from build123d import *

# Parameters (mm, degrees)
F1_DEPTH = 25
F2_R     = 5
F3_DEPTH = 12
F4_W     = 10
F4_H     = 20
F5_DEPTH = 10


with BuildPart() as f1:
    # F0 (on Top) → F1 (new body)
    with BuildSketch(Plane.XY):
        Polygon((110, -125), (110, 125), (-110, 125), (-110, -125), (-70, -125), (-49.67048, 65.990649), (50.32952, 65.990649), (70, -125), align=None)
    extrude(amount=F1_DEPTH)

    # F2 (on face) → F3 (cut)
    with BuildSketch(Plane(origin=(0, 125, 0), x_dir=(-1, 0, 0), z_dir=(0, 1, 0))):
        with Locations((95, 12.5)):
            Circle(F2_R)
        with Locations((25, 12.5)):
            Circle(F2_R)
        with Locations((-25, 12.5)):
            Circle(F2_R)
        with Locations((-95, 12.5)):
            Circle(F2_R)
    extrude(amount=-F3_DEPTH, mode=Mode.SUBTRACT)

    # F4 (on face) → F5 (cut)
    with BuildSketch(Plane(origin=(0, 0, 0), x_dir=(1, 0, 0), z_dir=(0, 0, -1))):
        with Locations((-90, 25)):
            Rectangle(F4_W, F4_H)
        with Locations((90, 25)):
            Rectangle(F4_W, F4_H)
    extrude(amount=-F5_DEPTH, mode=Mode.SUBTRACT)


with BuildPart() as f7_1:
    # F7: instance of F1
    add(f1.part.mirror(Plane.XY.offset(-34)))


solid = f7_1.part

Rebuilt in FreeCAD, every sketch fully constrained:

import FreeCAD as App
import Part
import Sketcher
from FreeCAD import Vector

doc = App.newDocument("Part")
body = doc.addObject("PartDesign::Body", "Body")

# Sketch on XY plane
sketch1 = doc.addObject("Sketcher::SketchObject", "Sketch")
body.addObject(sketch1)
sketch1.AttachmentSupport = (doc.XY_Plane, [""])
sketch1.MapMode = "FlatFace"
sketch1.addGeometry([
    Part.LineSegment(Vector(110, -125, 0), Vector(110, 125, 0)),  # 0
    Part.LineSegment(Vector(110, 125, 0), Vector(-110, 125, 0)),  # 1
    Part.LineSegment(Vector(-110, 125, 0), Vector(-110, -125, 0)),  # 2
    Part.LineSegment(Vector(-110, -125, 0), Vector(-70, -125, 0)),  # 3
    Part.LineSegment(Vector(-70, -125, 0), Vector(-50, 66, 0)),  # 4
    Part.LineSegment(Vector(-50, 66, 0), Vector(50, 66, 0)),  # 5
    Part.LineSegment(Vector(50, 66, 0), Vector(70, -125, 0)),  # 6
    Part.LineSegment(Vector(70, -125, 0), Vector(110, -125, 0)),  # 7
], False)
sketch1.addConstraint([
    Sketcher.Constraint("Coincident", 0, 2, 1, 1),
    Sketcher.Constraint("Coincident", 1, 2, 2, 1),
    Sketcher.Constraint("Coincident", 2, 2, 3, 1),
    Sketcher.Constraint("Coincident", 3, 2, 4, 1),
    Sketcher.Constraint("Coincident", 4, 2, 5, 1),
    Sketcher.Constraint("Coincident", 5, 2, 6, 1),
    Sketcher.Constraint("Coincident", 6, 2, 7, 1),
    Sketcher.Constraint("Coincident", 7, 2, 0, 1),
    Sketcher.Constraint("Vertical", 0),
    Sketcher.Constraint("Horizontal", 1),
    Sketcher.Constraint("Vertical", 2),
    Sketcher.Constraint("Horizontal", 3),
    Sketcher.Constraint("Horizontal", 5),
    Sketcher.Constraint("Horizontal", 7),
    Sketcher.Constraint("Symmetric", 0, 2, 2, 2, -1, 1),
    Sketcher.Constraint("Symmetric", 3, 2, 6, 2, -2),
    Sketcher.Constraint("DistanceX", 1, 2, 1, 1, 220.0),
    Sketcher.Constraint("DistanceX", 3, 1, 3, 2, 40.0),
    Sketcher.Constraint("DistanceX", 5, 1, 5, 2, 100.0),
    Sketcher.Constraint("DistanceY", 0, 1, 0, 2, 250.0),
    Sketcher.Constraint("DistanceX", 4, 2, -1, 1, 49.67048),
    Sketcher.Constraint("DistanceY", -1, 1, 4, 2, 65.990649),
])
pad1 = doc.addObject("PartDesign::Pad", "Pad")
body.addObject(pad1)
pad1.Profile = sketch1
pad1.Length = 25

# Sketch on XZ plane
sketch2 = doc.addObject("Sketcher::SketchObject", "Sketch001")
body.addObject(sketch2)
sketch2.AttachmentSupport = (doc.XZ_Plane, [""])
sketch2.MapMode = "FlatFace"
sketch2.AttachmentOffset = App.Placement(Vector(0, 0, -125), App.Rotation())
sketch2.addGeometry([
    Part.Circle(Vector(-95, 12, 0), Vector(0, 0, 1), 5),
    Part.Circle(Vector(-25, 12, 0), Vector(0, 0, 1), 5),
    Part.Circle(Vector(25, 12, 0), Vector(0, 0, 1), 5),
    Part.Circle(Vector(95, 12, 0), Vector(0, 0, 1), 5),
], False)
sketch2.addConstraint([
    Sketcher.Constraint("Equal", 0, 1),
    Sketcher.Constraint("Equal", 1, 2),
    Sketcher.Constraint("Equal", 2, 3),
    Sketcher.Constraint("Symmetric", 1, 3, 2, 3, -2),
    Sketcher.Constraint("Symmetric", 0, 3, 3, 3, -2),
    Sketcher.Constraint("Horizontal", 0, 3, 1, 3),
    Sketcher.Constraint("Diameter", 0, 10.0),
    Sketcher.Constraint("DistanceX", 0, 3, -1, 1, 95.0),
    Sketcher.Constraint("DistanceX", 1, 3, -1, 1, 25.0),
    Sketcher.Constraint("DistanceY", -1, 1, 0, 3, 12.5),
])
pocket1 = doc.addObject("PartDesign::Pocket", "Pocket")
body.addObject(pocket1)
pocket1.Profile = sketch2
pocket1.Length = 12
pocket1.Reversed = True

# Sketch on XY plane
sketch3 = doc.addObject("Sketcher::SketchObject", "Sketch002")
body.addObject(sketch3)
sketch3.AttachmentSupport = (doc.XY_Plane, [""])
sketch3.MapMode = "FlatFace"
sketch3.addGeometry([
    Part.LineSegment(Vector(-95, -35, 0), Vector(-95, -15, 0)),  # 0
    Part.LineSegment(Vector(-95, -15, 0), Vector(-85, -15, 0)),  # 1
    Part.LineSegment(Vector(-85, -15, 0), Vector(-85, -35, 0)),  # 2
    Part.LineSegment(Vector(-85, -35, 0), Vector(-95, -35, 0)),  # 3
    Part.LineSegment(Vector(85, -35, 0), Vector(85, -15, 0)),  # 4
    Part.LineSegment(Vector(85, -15, 0), Vector(95, -15, 0)),  # 5
    Part.LineSegment(Vector(95, -15, 0), Vector(95, -35, 0)),  # 6
    Part.LineSegment(Vector(95, -35, 0), Vector(85, -35, 0)),  # 7
], False)
sketch3.addConstraint([
    Sketcher.Constraint("Coincident", 0, 2, 1, 1),
    Sketcher.Constraint("Coincident", 1, 2, 2, 1),
    Sketcher.Constraint("Coincident", 2, 2, 3, 1),
    Sketcher.Constraint("Coincident", 3, 2, 0, 1),
    Sketcher.Constraint("Coincident", 4, 2, 5, 1),
    Sketcher.Constraint("Coincident", 5, 2, 6, 1),
    Sketcher.Constraint("Coincident", 6, 2, 7, 1),
    Sketcher.Constraint("Coincident", 7, 2, 4, 1),
    Sketcher.Constraint("Vertical", 0),
    Sketcher.Constraint("Horizontal", 1),
    Sketcher.Constraint("Vertical", 2),
    Sketcher.Constraint("Horizontal", 3),
    Sketcher.Constraint("Vertical", 4),
    Sketcher.Constraint("Horizontal", 5),
    Sketcher.Constraint("Vertical", 6),
    Sketcher.Constraint("Horizontal", 7),
    Sketcher.Constraint("Symmetric", 1, 2, 4, 2, -2),
    Sketcher.Constraint("Symmetric", 3, 2, 6, 2, -2),
    Sketcher.Constraint("DistanceX", 1, 1, 1, 2, 10.0),
    Sketcher.Constraint("DistanceY", 0, 1, 0, 2, 20.0),
    Sketcher.Constraint("DistanceX", 0, 2, -1, 1, 95.0),
    Sketcher.Constraint("DistanceY", 0, 2, -1, 1, 15.0),
])
pocket2 = doc.addObject("PartDesign::Pocket", "Pocket001")
body.addObject(pocket2)
pocket2.Profile = sketch3
pocket2.Length = 10
pocket2.Reversed = True
body2 = doc.addObject("PartDesign::Body", "Body001")
doc.recompute()

mirroring = doc.addObject("Part::Mirroring", "Mirroring")
mirroring.Source = body
mirroring.Base = Vector(0, 0, -34)
mirroring.Normal = Vector(0, 0, 1)
body2.BaseFeature = mirroring
doc.recompute()
body.Visibility = False
mirroring.Visibility = False

doc.recompute()
